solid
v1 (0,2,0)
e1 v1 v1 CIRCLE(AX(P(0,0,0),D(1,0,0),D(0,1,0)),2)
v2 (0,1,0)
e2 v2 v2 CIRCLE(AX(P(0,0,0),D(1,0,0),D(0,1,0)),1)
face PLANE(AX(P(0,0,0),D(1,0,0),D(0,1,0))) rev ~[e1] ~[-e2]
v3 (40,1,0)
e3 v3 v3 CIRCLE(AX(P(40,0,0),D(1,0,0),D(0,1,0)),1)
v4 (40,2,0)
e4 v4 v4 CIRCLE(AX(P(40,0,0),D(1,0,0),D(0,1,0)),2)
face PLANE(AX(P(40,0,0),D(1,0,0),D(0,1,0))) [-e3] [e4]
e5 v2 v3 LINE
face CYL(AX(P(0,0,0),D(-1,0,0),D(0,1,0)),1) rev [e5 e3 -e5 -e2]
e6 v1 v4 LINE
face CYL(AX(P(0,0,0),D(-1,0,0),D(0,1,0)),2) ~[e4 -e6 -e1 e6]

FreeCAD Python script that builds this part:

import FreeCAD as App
import Part
import Sketcher

V = App.Vector
Q = App.Units.Quantity

doc = App.newDocument("Part")
params = doc.addObject("Spreadsheet::Sheet", "Params")
for row, (alias, value) in enumerate([
    ("sketch1_diameter", "4 mm"),
    ("sketch1_diameter2", "2 mm"),
    ("pad1_length", "40 mm"),
], start=1):
    params.set(f"A{row}", alias)
    params.set(f"B{row}", "=" + value)
    params.setAlias(f"B{row}", alias)

body = doc.addObject("PartDesign::Body", "Body")

# Sketch on YZ plane
sketch1 = body.newObject("Sketcher::SketchObject", "Sketch")
sketch1.AttachmentSupport = (doc.getObject("YZ_Plane"), [""])
sketch1.MapMode = "FlatFace"
sketch1.addGeometry([
    Part.Circle(V(0, 0, 0), V(0, 0, 1), 2),
    Part.Circle(V(0, 0, 0), V(0, 0, 1), 1),
], False)
sketch1.addConstraint([
    Sketcher.Constraint("Coincident", 0, 3, -1, 1),
    Sketcher.Constraint("Coincident", 1, 3, -1, 1),
    Sketcher.Constraint("Diameter", 0, Q("4 mm")),
    Sketcher.Constraint("Diameter", 1, Q("2 mm")),
])
sketch1.setExpression("Constraints[2]", "Params.sketch1_diameter")
sketch1.setExpression("Constraints[3]", "Params.sketch1_diameter2")
pad1 = body.newObject("PartDesign::Pad", "Pad")
pad1.Profile = sketch1
pad1.setExpression("Length", "Params.pad1_length")

doc.recompute()
